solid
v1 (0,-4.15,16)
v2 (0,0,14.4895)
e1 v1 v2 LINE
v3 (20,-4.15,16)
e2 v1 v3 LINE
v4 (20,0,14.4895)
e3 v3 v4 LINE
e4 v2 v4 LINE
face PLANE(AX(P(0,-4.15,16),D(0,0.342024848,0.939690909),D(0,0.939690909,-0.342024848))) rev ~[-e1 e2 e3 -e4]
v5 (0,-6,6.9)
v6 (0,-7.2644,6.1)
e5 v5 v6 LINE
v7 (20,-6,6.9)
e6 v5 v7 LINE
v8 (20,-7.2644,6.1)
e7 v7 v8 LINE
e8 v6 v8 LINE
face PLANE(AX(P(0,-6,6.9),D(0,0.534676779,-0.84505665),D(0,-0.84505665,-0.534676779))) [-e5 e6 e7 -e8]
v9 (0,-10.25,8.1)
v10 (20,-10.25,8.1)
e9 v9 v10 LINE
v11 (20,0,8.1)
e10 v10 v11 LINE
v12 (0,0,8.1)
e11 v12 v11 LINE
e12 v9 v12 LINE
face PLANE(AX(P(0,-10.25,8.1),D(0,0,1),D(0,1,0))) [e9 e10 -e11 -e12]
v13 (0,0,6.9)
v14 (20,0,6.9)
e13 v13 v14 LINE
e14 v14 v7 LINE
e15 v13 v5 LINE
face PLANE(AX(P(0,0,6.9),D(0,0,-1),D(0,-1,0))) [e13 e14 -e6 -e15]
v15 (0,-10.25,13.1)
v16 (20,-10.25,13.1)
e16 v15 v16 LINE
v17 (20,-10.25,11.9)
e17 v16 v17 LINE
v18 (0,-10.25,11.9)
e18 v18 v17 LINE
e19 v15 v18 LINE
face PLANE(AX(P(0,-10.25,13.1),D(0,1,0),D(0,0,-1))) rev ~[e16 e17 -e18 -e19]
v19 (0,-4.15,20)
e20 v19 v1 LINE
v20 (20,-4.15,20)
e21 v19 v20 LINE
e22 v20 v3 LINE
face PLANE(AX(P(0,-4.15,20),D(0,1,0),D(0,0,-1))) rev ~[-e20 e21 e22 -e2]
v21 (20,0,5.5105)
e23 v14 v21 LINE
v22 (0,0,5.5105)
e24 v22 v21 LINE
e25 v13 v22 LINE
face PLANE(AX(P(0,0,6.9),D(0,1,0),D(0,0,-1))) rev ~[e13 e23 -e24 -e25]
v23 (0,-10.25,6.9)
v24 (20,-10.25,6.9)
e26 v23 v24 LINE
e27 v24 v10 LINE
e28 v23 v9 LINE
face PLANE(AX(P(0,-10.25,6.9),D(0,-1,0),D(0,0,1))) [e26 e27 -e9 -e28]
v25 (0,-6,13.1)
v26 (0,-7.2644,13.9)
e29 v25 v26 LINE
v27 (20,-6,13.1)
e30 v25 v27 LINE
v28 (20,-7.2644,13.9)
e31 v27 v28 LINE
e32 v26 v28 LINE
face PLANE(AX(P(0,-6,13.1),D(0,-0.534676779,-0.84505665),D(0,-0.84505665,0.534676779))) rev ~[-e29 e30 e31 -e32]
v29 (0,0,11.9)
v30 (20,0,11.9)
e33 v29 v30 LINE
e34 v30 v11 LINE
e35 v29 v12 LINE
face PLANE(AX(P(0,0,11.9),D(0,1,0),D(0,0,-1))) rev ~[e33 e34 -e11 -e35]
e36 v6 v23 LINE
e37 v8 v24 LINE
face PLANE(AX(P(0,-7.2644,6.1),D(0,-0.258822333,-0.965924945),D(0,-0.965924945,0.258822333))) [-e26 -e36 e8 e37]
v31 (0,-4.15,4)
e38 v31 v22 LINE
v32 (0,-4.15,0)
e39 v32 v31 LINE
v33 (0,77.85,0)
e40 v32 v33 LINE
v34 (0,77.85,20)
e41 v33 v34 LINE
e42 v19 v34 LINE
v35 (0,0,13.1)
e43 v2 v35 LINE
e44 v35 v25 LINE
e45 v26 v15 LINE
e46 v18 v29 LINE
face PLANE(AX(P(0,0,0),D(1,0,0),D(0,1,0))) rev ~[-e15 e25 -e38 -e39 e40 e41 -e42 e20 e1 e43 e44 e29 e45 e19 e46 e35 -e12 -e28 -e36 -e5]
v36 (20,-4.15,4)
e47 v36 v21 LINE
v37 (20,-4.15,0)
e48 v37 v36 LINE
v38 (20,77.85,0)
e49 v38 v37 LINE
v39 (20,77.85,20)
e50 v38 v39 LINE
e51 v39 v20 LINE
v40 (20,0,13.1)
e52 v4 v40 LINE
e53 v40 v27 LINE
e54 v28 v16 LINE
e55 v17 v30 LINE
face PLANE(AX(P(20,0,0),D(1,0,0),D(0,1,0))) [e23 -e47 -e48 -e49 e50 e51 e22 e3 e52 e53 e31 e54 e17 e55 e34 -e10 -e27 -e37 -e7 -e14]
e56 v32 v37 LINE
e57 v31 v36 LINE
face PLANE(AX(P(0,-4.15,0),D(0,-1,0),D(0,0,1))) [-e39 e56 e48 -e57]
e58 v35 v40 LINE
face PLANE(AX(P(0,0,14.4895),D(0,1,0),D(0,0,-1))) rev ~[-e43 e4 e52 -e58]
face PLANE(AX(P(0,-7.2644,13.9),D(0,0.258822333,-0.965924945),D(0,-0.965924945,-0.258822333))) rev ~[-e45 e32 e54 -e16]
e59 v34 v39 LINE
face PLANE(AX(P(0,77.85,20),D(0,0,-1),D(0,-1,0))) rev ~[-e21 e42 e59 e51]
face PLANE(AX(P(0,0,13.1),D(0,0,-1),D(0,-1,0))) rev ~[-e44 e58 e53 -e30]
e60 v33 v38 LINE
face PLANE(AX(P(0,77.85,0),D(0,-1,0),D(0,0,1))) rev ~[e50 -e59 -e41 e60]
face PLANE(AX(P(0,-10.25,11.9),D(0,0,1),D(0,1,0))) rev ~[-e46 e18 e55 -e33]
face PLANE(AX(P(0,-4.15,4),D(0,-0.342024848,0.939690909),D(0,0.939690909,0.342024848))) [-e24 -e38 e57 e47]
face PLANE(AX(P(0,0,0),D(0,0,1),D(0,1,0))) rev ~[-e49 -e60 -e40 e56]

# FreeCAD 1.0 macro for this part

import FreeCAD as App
import Part
import Sketcher

V = App.Vector
Q = App.Units.Quantity

doc = App.newDocument("Part")
body = doc.addObject("PartDesign::Body", "Body")

sketch1 = body.newObject("Sketcher::SketchObject", "Sketch")
sketch1.AttachmentSupport = (doc.getObject("YZ_Plane"), [""])
sketch1.MapMode = "FlatFace"
sketch1.addGeometry(Part.LineSegment(V(77.8, 0, 0), V(77.8, 20, 0)), False)
sketch1.addGeometry(Part.LineSegment(V(77.8, 20, 0), V(-4.2, 20, 0)), False)
sketch1.addGeometry(Part.LineSegment(V(-4.2, 20, 0), V(-4.2, 16, 0)), False)
sketch1.addGeometry(Part.LineSegment(V(-4.2, 16, 0), V(0, 14.5, 0)), False)
sketch1.addGeometry(Part.LineSegment(V(0, 14.5, 0), V(0, 13.1, 0)), False)
sketch1.addGeometry(Part.LineSegment(V(0, 13.1, 0), V(-6, 13.1, 0)), False)
sketch1.addGeometry(Part.LineSegment(V(-6, 13.1, 0), V(-7.3, 13.9, 0)), False)
sketch1.addGeometry(Part.LineSegment(V(-7.3, 13.9, 0), V(-10.2, 13.1, 0)), False)
sketch1.addGeometry(Part.LineSegment(V(-10.2, 13.1, 0), V(-10.2, 11.9, 0)), False)
sketch1.addGeometry(Part.LineSegment(V(-10.2, 11.9, 0), V(0, 11.9, 0)), False)
sketch1.addGeometry(Part.LineSegment(V(0, 11.9, 0), V(0, 8.1, 0)), False)
sketch1.addGeometry(Part.LineSegment(V(0, 8.1, 0), V(-10.2, 8.1, 0)), False)
sketch1.addGeometry(Part.LineSegment(V(-10.2, 8.1, 0), V(-10.2, 6.9, 0)), False)
sketch1.addGeometry(Part.LineSegment(V(-10.2, 6.9, 0), V(-7.3, 6.1, 0)), False)
sketch1.addGeometry(Part.LineSegment(V(-7.3, 6.1, 0), V(-6, 6.9, 0)), False)
sketch1.addGeometry(Part.LineSegment(V(-6, 6.9, 0), V(0, 6.9, 0)), False)
sketch1.addGeometry(Part.LineSegment(V(0, 6.9, 0), V(0, 5.5, 0)), False)
sketch1.addGeometry(Part.LineSegment(V(0, 5.5, 0), V(-4.2, 4, 0)), False)
sketch1.addGeometry(Part.LineSegment(V(-4.2, 4, 0), V(-4.2, 0, 0)), False)
sketch1.addGeometry(Part.LineSegment(V(-4.2, 0, 0), V(77.8, 0, 0)), False)
sketch1.addConstraint(Sketcher.Constraint("Coincident", 0, 2, 1, 1))
sketch1.addConstraint(Sketcher.Constraint("Coincident", 1, 2, 2, 1))
sketch1.addConstraint(Sketcher.Constraint("Coincident", 2, 2, 3, 1))
sketch1.addConstraint(Sketcher.Constraint("Coincident", 3, 2, 4, 1))
sketch1.addConstraint(Sketcher.Constraint("Coincident", 4, 2, 5, 1))
sketch1.addConstraint(Sketcher.Constraint("Coincident", 5, 2, 6, 1))
sketch1.addConstraint(Sketcher.Constraint("Coincident", 6, 2, 7, 1))
sketch1.addConstraint(Sketcher.Constraint("Coincident", 7, 2, 8, 1))
sketch1.addConstraint(Sketcher.Constraint("Coincident", 8, 2, 9, 1))
sketch1.addConstraint(Sketcher.Constraint("Coincident", 9, 2, 10, 1))
sketch1.addConstraint(Sketcher.Constraint("Coincident", 10, 2, 11, 1))
sketch1.addConstraint(Sketcher.Constraint("Coincident", 11, 2, 12, 1))
sketch1.addConstraint(Sketcher.Constraint("Coincident", 12, 2, 13, 1))
sketch1.addConstraint(Sketcher.Constraint("Coincident", 13, 2, 14, 1))
sketch1.addConstraint(Sketcher.Constraint("Coincident", 14, 2, 15, 1))
sketch1.addConstraint(Sketcher.Constraint("Coincident", 15, 2, 16, 1))
sketch1.addConstraint(Sketcher.Constraint("Coincident", 16, 2, 17, 1))
sketch1.addConstraint(Sketcher.Constraint("Coincident", 17, 2, 18, 1))
sketch1.addConstraint(Sketcher.Constraint("Coincident", 18, 2, 19, 1))
sketch1.addConstraint(Sketcher.Constraint("Coincident", 19, 2, 0, 1))
sketch1.addConstraint(Sketcher.Constraint("Vertical", 0))
sketch1.addConstraint(Sketcher.Constraint("Horizontal", 1))
sketch1.addConstraint(Sketcher.Constraint("Vertical", 2))
sketch1.addConstraint(Sketcher.Constraint("Vertical", 4))
sketch1.addConstraint(Sketcher.Constraint("Horizontal", 5))
sketch1.addConstraint(Sketcher.Constraint("Vertical", 8))
sketch1.addConstraint(Sketcher.Constraint("Horizontal", 9))
sketch1.addConstraint(Sketcher.Constraint("Vertical", 10))
sketch1.addConstraint(Sketcher.Constraint("Horizontal", 11))
sketch1.addConstraint(Sketcher.Constraint("Vertical", 12))
sketch1.addConstraint(Sketcher.Constraint("Horizontal", 15))
sketch1.addConstraint(Sketcher.Constraint("Vertical", 16))
sketch1.addConstraint(Sketcher.Constraint("Vertical", 18))
sketch1.addConstraint(Sketcher.Constraint("Horizontal", 19))
sketch1.addConstraint(Sketcher.Constraint("PointOnObject", 3, 2, -2))
sketch1.addConstraint(Sketcher.Constraint("PointOnObject", 9, 2, -2))
sketch1.addConstraint(Sketcher.Constraint("PointOnObject", 15, 2, -2))
sketch1.addConstraint(Sketcher.Constraint("PointOnObject", 18, 2, -1))
sketch1.addConstraint(Sketcher.Constraint("Horizontal", 5, 2, 7, 2))
sketch1.addConstraint(Sketcher.Constraint("Horizontal", 12, 2, 14, 2))
sketch1.addConstraint(Sketcher.Constraint("Vertical", 8, 2, 11, 2))
sketch1.addConstraint(Sketcher.Constraint("Vertical", 6, 2, 13, 2))
sketch1.addConstraint(Sketcher.Constraint("Vertical", 5, 2, 14, 2))
sketch1.addConstraint(Sketcher.Constraint("Vertical", 2, 2, 17, 2))
sketch1.addConstraint(Sketcher.Constraint("Equal", 8, 12))
sketch1.addConstraint(Sketcher.Constraint("Equal", 4, 16))
sketch1.addConstraint(Sketcher.Constraint("Equal", 2, 18))
sketch1.addConstraint(Sketcher.Constraint("Equal", 7, 13))
sketch1.addConstraint(Sketcher.Constraint("Equal", 3, 17))
sketch1.addConstraint(Sketcher.Constraint("DistanceX", 1, 2, 1, 1, 82.0))
sketch1.addConstraint(Sketcher.Constraint("DistanceX", 5, 2, 5, 1, 6.0))
sketch1.addConstraint(Sketcher.Constraint("DistanceY", 0, 1, 0, 2, 20.0))
sketch1.addConstraint(Sketcher.Constraint("DistanceY", 2, 2, 2, 1, 4.0))
sketch1.addConstraint(Sketcher.Constraint("Angle", 3, Q("-20.0003 deg")))
sketch1.addConstraint(Sketcher.Constraint("DistanceY", 8, 2, 8, 1, 1.2))
sketch1.addConstraint(Sketcher.Constraint("DistanceY", 5, 2, 6, 2, 0.8))
sketch1.addConstraint(Sketcher.Constraint("Angle", 7, Q("-164.9998 deg")))
sketch1.addConstraint(Sketcher.Constraint("DistanceX", 5, 2, 2, 2, 1.85))
sketch1.addConstraint(Sketcher.Constraint("DistanceX", 7, 2, 5, 2, 4.25))
sketch1.addConstraint(Sketcher.Constraint("DistanceY", 10, 2, 10, 1, 3.8))
pad1 = body.newObject("PartDesign::Pad", "Pad")
pad1.Profile = sketch1
pad1.Length = 20

doc.recompute()
